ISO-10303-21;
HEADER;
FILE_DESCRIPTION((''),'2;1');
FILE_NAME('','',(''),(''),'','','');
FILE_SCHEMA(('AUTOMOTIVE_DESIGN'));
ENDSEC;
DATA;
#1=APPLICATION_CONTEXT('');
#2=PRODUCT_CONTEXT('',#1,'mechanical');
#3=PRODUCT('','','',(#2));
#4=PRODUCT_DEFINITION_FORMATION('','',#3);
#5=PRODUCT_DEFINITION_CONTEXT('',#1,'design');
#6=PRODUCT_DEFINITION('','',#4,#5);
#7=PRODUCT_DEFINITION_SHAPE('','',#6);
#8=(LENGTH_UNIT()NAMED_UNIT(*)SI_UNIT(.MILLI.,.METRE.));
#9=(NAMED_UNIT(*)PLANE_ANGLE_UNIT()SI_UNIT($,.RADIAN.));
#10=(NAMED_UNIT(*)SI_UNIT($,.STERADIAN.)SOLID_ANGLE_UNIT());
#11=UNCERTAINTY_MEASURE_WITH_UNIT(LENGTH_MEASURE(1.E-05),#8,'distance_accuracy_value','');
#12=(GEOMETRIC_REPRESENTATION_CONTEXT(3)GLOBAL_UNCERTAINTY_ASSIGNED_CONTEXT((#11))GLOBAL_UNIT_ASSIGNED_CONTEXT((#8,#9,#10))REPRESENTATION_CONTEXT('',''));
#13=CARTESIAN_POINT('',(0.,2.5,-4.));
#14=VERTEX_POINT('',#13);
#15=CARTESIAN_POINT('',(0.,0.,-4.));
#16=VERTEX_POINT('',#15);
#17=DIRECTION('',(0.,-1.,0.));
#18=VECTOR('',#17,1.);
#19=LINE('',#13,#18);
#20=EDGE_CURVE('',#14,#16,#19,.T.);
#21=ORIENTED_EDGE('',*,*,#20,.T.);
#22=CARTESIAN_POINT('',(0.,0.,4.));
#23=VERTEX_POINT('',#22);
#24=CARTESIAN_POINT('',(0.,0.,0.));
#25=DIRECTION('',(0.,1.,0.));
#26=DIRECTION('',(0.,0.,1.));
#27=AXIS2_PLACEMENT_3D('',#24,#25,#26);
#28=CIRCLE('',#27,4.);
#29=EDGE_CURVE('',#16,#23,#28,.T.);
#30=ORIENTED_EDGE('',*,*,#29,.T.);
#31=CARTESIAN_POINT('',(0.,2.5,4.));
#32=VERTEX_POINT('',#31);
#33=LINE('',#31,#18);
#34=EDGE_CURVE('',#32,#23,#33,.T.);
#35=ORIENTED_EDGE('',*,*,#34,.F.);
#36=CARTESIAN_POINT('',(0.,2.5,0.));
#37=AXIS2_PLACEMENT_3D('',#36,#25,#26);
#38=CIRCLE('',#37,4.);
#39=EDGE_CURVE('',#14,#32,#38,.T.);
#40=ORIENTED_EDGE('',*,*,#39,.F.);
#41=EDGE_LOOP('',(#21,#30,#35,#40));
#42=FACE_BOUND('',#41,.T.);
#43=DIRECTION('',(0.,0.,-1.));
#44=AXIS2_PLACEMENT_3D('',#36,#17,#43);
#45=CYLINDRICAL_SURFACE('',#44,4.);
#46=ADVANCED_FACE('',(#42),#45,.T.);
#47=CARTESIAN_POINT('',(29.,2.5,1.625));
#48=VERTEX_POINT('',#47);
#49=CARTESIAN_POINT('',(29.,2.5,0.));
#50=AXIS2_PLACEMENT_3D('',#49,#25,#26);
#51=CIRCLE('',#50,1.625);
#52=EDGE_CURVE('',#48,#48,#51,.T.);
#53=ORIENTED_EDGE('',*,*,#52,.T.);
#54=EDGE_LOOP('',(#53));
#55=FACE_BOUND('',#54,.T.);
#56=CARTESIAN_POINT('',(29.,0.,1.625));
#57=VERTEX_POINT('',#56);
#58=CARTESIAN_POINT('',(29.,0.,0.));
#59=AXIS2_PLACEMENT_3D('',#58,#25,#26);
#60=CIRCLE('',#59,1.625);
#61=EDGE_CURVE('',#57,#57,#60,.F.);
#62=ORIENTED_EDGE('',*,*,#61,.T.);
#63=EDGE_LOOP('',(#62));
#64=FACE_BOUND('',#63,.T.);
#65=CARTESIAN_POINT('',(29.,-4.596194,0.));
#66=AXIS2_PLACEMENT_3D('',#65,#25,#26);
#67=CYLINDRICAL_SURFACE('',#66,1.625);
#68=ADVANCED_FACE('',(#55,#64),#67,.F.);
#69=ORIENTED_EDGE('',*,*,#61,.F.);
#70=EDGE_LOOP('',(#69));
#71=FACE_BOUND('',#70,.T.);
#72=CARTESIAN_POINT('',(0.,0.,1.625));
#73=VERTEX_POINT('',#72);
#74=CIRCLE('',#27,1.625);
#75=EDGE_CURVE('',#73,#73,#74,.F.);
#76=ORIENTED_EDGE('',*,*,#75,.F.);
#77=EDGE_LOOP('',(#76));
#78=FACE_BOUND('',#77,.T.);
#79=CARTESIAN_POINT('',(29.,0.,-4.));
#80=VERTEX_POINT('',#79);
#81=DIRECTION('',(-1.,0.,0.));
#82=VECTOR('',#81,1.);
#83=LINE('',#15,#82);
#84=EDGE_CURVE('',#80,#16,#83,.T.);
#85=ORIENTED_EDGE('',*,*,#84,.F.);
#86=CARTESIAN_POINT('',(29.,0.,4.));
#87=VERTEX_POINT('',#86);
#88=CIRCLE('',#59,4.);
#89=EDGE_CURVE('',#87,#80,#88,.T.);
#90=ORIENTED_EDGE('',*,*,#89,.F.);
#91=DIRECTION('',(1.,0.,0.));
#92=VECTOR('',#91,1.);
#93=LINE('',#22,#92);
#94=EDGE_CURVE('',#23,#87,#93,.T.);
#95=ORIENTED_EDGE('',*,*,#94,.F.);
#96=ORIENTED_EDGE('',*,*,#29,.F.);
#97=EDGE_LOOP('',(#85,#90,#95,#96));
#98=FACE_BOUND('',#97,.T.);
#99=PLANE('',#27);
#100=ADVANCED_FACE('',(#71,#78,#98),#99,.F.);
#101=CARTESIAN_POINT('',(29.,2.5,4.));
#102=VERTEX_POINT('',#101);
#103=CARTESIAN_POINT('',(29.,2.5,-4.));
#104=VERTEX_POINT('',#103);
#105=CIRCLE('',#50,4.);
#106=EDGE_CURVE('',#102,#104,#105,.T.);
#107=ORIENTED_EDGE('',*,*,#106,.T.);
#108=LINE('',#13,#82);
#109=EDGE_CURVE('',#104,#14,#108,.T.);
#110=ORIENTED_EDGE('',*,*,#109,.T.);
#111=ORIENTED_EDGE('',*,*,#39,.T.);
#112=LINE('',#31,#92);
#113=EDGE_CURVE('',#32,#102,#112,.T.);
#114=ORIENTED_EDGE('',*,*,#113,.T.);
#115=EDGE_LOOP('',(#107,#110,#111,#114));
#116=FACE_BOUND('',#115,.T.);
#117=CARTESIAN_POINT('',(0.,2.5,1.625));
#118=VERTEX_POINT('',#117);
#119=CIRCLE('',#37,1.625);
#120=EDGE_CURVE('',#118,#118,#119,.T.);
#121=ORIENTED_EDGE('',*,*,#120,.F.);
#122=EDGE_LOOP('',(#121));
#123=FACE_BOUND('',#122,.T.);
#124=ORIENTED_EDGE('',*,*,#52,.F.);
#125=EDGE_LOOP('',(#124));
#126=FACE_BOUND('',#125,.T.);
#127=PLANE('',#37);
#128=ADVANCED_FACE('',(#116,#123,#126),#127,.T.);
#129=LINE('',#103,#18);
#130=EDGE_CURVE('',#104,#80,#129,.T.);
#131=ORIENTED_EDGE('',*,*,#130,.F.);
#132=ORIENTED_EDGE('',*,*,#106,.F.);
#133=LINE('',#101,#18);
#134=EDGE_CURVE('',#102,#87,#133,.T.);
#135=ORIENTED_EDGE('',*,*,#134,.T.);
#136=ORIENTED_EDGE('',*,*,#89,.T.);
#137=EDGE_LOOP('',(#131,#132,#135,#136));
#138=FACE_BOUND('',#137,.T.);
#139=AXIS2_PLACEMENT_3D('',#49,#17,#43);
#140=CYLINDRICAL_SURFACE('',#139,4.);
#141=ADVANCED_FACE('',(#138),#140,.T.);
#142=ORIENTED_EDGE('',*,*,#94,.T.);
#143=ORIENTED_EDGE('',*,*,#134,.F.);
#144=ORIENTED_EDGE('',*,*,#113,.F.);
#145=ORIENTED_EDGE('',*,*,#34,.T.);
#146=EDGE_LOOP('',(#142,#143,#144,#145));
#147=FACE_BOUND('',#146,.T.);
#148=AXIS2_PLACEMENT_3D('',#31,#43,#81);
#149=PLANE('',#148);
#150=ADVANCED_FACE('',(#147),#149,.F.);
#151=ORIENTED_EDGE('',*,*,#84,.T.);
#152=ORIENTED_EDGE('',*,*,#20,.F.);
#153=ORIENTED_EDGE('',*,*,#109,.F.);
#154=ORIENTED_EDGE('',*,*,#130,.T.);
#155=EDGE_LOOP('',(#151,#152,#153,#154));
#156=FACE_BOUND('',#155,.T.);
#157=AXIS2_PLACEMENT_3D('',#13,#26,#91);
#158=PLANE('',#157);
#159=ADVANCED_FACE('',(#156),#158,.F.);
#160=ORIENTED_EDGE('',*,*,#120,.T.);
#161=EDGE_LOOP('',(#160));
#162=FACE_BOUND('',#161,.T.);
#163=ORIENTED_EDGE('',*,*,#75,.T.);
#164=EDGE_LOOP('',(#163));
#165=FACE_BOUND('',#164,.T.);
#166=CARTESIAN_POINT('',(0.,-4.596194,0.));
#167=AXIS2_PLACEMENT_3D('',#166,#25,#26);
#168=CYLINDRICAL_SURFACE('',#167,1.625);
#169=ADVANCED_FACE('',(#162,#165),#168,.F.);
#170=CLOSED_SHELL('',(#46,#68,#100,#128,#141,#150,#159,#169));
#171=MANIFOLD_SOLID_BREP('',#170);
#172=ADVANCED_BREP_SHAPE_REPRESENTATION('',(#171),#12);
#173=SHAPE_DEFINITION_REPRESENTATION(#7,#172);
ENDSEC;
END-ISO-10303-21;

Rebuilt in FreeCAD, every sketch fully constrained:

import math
import FreeCAD as App
import Part
import Sketcher
from FreeCAD import Vector

doc = App.newDocument("Part")
body = doc.addObject("PartDesign::Body", "Body")

sketch1 = doc.addObject("Sketcher::SketchObject", "Sketch")
body.addObject(sketch1)
sketch1.AttachmentSupport = (doc.XZ_Plane, [""])
sketch1.MapMode = "FlatFace"
sketch1.addGeometry(Part.LineSegment(Vector(29, -4, 0), Vector(0, -4, 0)), False)
sketch1.addGeometry(Part.ArcOfCircle(Part.Circle(Vector(0, 0, 0), Vector(0, 0, 1), 4), math.radians(90), math.radians(270)), False)
sketch1.addGeometry(Part.LineSegment(Vector(0, 4, 0), Vector(29, 4, 0)), False)
sketch1.addGeometry(Part.ArcOfCircle(Part.Circle(Vector(29, 0, 0), Vector(0, 0, 1), 4), math.radians(-90), math.radians(90)), False)
sketch1.addConstraint(Sketcher.Constraint("Tangent", 0, 2, 1, 2))
sketch1.addConstraint(Sketcher.Constraint("Tangent", 1, 1, 2, 1))
sketch1.addConstraint(Sketcher.Constraint("Tangent", 2, 2, 3, 2))
sketch1.addConstraint(Sketcher.Constraint("Tangent", 3, 1, 0, 1))
sketch1.addConstraint(Sketcher.Constraint("Horizontal", 0))
sketch1.addConstraint(Sketcher.Constraint("Horizontal", 2))
sketch1.addConstraint(Sketcher.Constraint("Coincident", 1, 3, -1, 1))
sketch1.addConstraint(Sketcher.Constraint("Radius", 1, 4.0))
sketch1.addConstraint(Sketcher.Constraint("DistanceX", 0, 2, 0, 1, 29.0))
pad1 = doc.addObject("PartDesign::Pad", "Pad")
body.addObject(pad1)
pad1.Profile = sketch1
pad1.Length = 2.5
pad1.Reversed = True

sketch2 = doc.addObject("Sketcher::SketchObject", "Sketch001")
body.addObject(sketch2)
sketch2.AttachmentSupport = (doc.XZ_Plane, [""])
sketch2.MapMode = "FlatFace"
sketch2.AttachmentOffset = App.Placement(Vector(0, 0, -2.5), App.Rotation())
sketch2.addGeometry(Part.Circle(Vector(0, 0, 0), Vector(0, 0, 1), 1.6), False)
sketch2.addGeometry(Part.Circle(Vector(29, 0, 0), Vector(0, 0, 1), 1.6), False)
sketch2.addConstraint(Sketcher.Constraint("Coincident", 0, 3, -1, 1))
sketch2.addConstraint(Sketcher.Constraint("Equal", 0, 1))
sketch2.addConstraint(Sketcher.Constraint("PointOnObject", 1, 3, -1))
sketch2.addConstraint(Sketcher.Constraint("Diameter", 0, 3.25))
sketch2.addConstraint(Sketcher.Constraint("DistanceX", -1, 1, 1, 3, 29.0))
pocket1 = doc.addObject("PartDesign::Pocket", "Pocket")
body.addObject(pocket1)
pocket1.Profile = sketch2
pocket1.Length = 2.5
pocket1.Reversed = True

doc.recompute()
